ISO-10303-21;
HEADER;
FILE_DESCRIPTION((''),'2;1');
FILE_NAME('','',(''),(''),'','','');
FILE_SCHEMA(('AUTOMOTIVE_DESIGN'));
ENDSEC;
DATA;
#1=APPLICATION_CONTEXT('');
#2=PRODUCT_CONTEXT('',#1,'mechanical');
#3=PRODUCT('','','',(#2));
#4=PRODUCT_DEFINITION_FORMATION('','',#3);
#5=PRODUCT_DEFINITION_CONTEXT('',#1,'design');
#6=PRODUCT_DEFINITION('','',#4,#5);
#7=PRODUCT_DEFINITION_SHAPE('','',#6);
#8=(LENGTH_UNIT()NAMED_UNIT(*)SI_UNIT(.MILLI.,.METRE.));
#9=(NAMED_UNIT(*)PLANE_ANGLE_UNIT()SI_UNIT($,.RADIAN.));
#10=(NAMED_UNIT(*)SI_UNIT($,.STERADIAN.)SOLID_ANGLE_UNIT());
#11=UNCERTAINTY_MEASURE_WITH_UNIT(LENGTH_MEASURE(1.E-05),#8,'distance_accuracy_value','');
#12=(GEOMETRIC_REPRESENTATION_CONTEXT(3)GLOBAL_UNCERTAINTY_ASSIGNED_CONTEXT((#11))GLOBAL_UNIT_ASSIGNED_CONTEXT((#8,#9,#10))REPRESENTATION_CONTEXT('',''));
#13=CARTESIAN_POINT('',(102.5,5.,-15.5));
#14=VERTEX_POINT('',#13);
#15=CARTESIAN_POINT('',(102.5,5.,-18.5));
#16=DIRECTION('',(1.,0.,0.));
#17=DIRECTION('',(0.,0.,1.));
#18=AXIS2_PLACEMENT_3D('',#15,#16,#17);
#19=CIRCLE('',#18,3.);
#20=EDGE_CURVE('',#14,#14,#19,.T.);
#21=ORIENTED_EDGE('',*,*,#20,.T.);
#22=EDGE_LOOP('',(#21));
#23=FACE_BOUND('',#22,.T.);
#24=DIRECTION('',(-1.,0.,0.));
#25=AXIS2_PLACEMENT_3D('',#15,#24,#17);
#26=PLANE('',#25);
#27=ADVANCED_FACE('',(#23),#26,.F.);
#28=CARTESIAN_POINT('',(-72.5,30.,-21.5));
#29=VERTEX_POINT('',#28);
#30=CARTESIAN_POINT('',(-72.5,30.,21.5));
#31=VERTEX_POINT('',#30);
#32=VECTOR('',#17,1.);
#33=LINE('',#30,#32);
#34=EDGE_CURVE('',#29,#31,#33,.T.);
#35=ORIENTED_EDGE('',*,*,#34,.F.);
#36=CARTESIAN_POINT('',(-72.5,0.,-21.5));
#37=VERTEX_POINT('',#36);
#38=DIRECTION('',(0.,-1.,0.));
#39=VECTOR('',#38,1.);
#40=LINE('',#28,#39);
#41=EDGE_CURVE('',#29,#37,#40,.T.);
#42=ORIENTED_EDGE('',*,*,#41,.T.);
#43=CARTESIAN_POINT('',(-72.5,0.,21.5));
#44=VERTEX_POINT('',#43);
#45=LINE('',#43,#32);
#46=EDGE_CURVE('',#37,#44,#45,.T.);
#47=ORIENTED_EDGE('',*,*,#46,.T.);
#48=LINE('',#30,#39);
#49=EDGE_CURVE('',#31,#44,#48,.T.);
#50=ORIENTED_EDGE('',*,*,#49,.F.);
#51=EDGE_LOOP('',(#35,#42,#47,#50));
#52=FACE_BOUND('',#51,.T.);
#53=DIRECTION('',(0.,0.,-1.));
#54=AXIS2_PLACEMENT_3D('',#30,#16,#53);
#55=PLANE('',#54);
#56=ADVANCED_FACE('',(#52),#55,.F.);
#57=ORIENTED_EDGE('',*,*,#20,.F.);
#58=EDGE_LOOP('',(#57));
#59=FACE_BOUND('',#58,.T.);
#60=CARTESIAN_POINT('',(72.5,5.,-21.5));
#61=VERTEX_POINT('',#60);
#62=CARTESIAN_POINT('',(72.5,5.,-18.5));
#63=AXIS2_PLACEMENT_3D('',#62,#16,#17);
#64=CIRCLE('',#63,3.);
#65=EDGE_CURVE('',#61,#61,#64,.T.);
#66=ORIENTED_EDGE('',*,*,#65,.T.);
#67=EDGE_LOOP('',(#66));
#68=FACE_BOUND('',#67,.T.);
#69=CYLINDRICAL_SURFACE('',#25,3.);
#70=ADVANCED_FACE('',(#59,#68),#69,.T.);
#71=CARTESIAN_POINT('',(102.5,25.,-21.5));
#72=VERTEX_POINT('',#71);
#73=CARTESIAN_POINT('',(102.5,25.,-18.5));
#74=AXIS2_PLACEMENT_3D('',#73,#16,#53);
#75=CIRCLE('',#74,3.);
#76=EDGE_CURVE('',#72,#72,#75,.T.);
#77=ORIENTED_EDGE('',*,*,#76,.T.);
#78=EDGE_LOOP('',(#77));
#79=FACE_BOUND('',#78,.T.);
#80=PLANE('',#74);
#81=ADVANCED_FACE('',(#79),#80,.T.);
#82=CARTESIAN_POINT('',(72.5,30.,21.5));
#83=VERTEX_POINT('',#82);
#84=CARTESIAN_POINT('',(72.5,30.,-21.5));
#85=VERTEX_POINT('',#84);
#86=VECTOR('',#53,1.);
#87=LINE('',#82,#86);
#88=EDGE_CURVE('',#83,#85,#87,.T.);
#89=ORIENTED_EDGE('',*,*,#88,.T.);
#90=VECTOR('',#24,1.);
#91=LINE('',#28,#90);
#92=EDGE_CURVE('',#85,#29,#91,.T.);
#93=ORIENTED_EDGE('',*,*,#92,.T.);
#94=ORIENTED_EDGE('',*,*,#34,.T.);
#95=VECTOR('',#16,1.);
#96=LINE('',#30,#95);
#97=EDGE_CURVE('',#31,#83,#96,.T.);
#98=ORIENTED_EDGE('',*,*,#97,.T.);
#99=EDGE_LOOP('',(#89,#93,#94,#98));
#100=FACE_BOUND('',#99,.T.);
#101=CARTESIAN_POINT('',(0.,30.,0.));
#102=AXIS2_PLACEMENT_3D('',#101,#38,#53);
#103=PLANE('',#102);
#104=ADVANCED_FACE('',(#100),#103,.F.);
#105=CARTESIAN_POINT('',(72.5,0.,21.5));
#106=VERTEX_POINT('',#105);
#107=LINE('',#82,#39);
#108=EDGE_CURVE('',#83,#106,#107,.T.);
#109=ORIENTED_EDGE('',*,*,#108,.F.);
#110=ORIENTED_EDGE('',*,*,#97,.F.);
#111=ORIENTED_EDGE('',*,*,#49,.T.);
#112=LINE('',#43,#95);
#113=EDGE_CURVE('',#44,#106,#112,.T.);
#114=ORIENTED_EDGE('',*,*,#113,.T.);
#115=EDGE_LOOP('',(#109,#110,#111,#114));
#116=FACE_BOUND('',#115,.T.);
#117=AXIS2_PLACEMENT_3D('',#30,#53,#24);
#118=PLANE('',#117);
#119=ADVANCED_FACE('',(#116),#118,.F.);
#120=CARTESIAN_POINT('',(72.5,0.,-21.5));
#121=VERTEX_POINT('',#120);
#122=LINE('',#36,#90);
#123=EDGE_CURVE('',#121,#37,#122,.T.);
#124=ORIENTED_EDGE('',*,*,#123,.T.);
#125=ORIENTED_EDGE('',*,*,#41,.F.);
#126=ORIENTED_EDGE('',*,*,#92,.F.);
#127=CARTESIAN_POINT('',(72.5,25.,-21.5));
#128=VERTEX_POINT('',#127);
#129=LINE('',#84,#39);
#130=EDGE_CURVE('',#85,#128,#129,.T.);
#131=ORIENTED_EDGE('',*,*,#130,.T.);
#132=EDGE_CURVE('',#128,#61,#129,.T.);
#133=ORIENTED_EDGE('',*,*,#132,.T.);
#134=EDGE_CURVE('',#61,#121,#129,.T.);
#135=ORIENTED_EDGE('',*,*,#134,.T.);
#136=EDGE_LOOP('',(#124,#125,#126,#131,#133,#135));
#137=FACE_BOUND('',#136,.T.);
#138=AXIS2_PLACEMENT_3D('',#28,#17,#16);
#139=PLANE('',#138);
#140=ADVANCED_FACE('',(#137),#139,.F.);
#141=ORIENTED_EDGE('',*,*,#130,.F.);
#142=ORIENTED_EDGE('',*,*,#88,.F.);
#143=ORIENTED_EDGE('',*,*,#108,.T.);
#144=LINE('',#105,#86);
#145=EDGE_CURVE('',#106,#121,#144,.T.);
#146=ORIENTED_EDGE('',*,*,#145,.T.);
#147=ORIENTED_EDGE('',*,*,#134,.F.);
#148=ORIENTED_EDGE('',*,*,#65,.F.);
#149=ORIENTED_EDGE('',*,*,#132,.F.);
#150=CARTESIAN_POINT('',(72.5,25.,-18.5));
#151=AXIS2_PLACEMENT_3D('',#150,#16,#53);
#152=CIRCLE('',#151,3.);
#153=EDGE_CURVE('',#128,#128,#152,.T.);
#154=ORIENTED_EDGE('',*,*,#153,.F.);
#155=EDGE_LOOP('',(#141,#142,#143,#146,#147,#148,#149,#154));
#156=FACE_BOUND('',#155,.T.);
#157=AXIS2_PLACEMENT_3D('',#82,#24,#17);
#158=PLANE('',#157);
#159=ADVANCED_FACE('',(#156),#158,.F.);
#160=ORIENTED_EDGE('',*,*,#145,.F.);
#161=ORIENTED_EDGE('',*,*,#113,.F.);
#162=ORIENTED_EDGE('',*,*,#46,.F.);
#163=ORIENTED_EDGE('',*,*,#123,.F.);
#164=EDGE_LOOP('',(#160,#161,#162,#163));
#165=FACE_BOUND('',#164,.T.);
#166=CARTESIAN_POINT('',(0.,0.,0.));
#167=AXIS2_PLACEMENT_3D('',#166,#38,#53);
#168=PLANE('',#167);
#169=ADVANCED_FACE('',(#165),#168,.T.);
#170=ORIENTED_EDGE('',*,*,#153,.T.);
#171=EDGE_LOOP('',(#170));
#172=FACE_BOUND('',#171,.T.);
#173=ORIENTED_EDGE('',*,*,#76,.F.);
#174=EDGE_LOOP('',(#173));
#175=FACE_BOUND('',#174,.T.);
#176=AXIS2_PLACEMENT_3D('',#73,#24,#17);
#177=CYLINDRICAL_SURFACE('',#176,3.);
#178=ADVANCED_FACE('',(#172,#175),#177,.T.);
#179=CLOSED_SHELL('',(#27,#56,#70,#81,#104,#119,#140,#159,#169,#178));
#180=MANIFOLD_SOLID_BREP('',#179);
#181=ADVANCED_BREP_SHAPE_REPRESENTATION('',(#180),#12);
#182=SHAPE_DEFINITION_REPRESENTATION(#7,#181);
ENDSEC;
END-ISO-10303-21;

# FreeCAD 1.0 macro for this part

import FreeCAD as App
import Part
import Sketcher


def add_polygon(sketch, points):
    """Adds a closed chain of lines whose ends are joined by coincident constraints."""
    first, n = sketch.GeometryCount, len(points)
    for a, b in zip(points, points[1:] + points[:1]):
        sketch.addGeometry(Part.LineSegment(App.Vector(*a, 0), App.Vector(*b, 0)), False)
    for i in range(n):
        sketch.addConstraint(Sketcher.Constraint("Coincident", first + i, 2, first + (i + 1) % n, 1))

doc = App.newDocument("Part")
body = doc.addObject("PartDesign::Body", "Body")

# Sketch on XZ plane
sketch1 = doc.addObject("Sketcher::SketchObject", "Sketch")
body.addObject(sketch1)
sketch1.AttachmentSupport = (doc.XZ_Plane, [""])
sketch1.MapMode = "FlatFace"
add_polygon(sketch1, [(-72, -22), (-72, 22), (72, 22), (72, -22)])  # lines 0-3
sketch1.addConstraint([
    Sketcher.Constraint("Vertical", 0),
    Sketcher.Constraint("Horizontal", 1),
    Sketcher.Constraint("Vertical", 2),
    Sketcher.Constraint("Horizontal", 3),
    Sketcher.Constraint("Symmetric", 0, 2, 2, 2, -1, 1),
    Sketcher.Constraint("DistanceX", 1, 1, 1, 2, 145.0),
    Sketcher.Constraint("DistanceY", 0, 1, 0, 2, 43.0),
])
pad1 = doc.addObject("PartDesign::Pad", "Pad")
body.addObject(pad1)
pad1.Profile = sketch1
pad1.Length = 30
pad1.Reversed = True

# Sketch on YZ plane
sketch2 = doc.addObject("Sketcher::SketchObject", "Sketch001")
body.addObject(sketch2)
sketch2.AttachmentSupport = (doc.YZ_Plane, [""])
sketch2.MapMode = "FlatFace"
sketch2.AttachmentOffset = App.Placement(App.Vector(0, 0, 72.5), App.Rotation())
sketch2.addGeometry([
    Part.Circle(App.Vector(25, -18.5, 0), App.Vector(0, 0, 1), 3),
    Part.Circle(App.Vector(5, -18.5, 0), App.Vector(0, 0, 1), 3),
], False)
sketch2.addConstraint([
    Sketcher.Constraint("Equal", 0, 1),
    Sketcher.Constraint("Horizontal", 0, 3, 1, 3),
    Sketcher.Constraint("Diameter", 0, 6.0),
    Sketcher.Constraint("DistanceX", -1, 1, 0, 3, 25.0),
    Sketcher.Constraint("DistanceX", -1, 1, 1, 3, 5.0),
    Sketcher.Constraint("DistanceY", 0, 3, -1, 1, 18.5),
])
pad2 = doc.addObject("PartDesign::Pad", "Pad001")
body.addObject(pad2)
pad2.Profile = sketch2
pad2.Length = 30

doc.recompute()
